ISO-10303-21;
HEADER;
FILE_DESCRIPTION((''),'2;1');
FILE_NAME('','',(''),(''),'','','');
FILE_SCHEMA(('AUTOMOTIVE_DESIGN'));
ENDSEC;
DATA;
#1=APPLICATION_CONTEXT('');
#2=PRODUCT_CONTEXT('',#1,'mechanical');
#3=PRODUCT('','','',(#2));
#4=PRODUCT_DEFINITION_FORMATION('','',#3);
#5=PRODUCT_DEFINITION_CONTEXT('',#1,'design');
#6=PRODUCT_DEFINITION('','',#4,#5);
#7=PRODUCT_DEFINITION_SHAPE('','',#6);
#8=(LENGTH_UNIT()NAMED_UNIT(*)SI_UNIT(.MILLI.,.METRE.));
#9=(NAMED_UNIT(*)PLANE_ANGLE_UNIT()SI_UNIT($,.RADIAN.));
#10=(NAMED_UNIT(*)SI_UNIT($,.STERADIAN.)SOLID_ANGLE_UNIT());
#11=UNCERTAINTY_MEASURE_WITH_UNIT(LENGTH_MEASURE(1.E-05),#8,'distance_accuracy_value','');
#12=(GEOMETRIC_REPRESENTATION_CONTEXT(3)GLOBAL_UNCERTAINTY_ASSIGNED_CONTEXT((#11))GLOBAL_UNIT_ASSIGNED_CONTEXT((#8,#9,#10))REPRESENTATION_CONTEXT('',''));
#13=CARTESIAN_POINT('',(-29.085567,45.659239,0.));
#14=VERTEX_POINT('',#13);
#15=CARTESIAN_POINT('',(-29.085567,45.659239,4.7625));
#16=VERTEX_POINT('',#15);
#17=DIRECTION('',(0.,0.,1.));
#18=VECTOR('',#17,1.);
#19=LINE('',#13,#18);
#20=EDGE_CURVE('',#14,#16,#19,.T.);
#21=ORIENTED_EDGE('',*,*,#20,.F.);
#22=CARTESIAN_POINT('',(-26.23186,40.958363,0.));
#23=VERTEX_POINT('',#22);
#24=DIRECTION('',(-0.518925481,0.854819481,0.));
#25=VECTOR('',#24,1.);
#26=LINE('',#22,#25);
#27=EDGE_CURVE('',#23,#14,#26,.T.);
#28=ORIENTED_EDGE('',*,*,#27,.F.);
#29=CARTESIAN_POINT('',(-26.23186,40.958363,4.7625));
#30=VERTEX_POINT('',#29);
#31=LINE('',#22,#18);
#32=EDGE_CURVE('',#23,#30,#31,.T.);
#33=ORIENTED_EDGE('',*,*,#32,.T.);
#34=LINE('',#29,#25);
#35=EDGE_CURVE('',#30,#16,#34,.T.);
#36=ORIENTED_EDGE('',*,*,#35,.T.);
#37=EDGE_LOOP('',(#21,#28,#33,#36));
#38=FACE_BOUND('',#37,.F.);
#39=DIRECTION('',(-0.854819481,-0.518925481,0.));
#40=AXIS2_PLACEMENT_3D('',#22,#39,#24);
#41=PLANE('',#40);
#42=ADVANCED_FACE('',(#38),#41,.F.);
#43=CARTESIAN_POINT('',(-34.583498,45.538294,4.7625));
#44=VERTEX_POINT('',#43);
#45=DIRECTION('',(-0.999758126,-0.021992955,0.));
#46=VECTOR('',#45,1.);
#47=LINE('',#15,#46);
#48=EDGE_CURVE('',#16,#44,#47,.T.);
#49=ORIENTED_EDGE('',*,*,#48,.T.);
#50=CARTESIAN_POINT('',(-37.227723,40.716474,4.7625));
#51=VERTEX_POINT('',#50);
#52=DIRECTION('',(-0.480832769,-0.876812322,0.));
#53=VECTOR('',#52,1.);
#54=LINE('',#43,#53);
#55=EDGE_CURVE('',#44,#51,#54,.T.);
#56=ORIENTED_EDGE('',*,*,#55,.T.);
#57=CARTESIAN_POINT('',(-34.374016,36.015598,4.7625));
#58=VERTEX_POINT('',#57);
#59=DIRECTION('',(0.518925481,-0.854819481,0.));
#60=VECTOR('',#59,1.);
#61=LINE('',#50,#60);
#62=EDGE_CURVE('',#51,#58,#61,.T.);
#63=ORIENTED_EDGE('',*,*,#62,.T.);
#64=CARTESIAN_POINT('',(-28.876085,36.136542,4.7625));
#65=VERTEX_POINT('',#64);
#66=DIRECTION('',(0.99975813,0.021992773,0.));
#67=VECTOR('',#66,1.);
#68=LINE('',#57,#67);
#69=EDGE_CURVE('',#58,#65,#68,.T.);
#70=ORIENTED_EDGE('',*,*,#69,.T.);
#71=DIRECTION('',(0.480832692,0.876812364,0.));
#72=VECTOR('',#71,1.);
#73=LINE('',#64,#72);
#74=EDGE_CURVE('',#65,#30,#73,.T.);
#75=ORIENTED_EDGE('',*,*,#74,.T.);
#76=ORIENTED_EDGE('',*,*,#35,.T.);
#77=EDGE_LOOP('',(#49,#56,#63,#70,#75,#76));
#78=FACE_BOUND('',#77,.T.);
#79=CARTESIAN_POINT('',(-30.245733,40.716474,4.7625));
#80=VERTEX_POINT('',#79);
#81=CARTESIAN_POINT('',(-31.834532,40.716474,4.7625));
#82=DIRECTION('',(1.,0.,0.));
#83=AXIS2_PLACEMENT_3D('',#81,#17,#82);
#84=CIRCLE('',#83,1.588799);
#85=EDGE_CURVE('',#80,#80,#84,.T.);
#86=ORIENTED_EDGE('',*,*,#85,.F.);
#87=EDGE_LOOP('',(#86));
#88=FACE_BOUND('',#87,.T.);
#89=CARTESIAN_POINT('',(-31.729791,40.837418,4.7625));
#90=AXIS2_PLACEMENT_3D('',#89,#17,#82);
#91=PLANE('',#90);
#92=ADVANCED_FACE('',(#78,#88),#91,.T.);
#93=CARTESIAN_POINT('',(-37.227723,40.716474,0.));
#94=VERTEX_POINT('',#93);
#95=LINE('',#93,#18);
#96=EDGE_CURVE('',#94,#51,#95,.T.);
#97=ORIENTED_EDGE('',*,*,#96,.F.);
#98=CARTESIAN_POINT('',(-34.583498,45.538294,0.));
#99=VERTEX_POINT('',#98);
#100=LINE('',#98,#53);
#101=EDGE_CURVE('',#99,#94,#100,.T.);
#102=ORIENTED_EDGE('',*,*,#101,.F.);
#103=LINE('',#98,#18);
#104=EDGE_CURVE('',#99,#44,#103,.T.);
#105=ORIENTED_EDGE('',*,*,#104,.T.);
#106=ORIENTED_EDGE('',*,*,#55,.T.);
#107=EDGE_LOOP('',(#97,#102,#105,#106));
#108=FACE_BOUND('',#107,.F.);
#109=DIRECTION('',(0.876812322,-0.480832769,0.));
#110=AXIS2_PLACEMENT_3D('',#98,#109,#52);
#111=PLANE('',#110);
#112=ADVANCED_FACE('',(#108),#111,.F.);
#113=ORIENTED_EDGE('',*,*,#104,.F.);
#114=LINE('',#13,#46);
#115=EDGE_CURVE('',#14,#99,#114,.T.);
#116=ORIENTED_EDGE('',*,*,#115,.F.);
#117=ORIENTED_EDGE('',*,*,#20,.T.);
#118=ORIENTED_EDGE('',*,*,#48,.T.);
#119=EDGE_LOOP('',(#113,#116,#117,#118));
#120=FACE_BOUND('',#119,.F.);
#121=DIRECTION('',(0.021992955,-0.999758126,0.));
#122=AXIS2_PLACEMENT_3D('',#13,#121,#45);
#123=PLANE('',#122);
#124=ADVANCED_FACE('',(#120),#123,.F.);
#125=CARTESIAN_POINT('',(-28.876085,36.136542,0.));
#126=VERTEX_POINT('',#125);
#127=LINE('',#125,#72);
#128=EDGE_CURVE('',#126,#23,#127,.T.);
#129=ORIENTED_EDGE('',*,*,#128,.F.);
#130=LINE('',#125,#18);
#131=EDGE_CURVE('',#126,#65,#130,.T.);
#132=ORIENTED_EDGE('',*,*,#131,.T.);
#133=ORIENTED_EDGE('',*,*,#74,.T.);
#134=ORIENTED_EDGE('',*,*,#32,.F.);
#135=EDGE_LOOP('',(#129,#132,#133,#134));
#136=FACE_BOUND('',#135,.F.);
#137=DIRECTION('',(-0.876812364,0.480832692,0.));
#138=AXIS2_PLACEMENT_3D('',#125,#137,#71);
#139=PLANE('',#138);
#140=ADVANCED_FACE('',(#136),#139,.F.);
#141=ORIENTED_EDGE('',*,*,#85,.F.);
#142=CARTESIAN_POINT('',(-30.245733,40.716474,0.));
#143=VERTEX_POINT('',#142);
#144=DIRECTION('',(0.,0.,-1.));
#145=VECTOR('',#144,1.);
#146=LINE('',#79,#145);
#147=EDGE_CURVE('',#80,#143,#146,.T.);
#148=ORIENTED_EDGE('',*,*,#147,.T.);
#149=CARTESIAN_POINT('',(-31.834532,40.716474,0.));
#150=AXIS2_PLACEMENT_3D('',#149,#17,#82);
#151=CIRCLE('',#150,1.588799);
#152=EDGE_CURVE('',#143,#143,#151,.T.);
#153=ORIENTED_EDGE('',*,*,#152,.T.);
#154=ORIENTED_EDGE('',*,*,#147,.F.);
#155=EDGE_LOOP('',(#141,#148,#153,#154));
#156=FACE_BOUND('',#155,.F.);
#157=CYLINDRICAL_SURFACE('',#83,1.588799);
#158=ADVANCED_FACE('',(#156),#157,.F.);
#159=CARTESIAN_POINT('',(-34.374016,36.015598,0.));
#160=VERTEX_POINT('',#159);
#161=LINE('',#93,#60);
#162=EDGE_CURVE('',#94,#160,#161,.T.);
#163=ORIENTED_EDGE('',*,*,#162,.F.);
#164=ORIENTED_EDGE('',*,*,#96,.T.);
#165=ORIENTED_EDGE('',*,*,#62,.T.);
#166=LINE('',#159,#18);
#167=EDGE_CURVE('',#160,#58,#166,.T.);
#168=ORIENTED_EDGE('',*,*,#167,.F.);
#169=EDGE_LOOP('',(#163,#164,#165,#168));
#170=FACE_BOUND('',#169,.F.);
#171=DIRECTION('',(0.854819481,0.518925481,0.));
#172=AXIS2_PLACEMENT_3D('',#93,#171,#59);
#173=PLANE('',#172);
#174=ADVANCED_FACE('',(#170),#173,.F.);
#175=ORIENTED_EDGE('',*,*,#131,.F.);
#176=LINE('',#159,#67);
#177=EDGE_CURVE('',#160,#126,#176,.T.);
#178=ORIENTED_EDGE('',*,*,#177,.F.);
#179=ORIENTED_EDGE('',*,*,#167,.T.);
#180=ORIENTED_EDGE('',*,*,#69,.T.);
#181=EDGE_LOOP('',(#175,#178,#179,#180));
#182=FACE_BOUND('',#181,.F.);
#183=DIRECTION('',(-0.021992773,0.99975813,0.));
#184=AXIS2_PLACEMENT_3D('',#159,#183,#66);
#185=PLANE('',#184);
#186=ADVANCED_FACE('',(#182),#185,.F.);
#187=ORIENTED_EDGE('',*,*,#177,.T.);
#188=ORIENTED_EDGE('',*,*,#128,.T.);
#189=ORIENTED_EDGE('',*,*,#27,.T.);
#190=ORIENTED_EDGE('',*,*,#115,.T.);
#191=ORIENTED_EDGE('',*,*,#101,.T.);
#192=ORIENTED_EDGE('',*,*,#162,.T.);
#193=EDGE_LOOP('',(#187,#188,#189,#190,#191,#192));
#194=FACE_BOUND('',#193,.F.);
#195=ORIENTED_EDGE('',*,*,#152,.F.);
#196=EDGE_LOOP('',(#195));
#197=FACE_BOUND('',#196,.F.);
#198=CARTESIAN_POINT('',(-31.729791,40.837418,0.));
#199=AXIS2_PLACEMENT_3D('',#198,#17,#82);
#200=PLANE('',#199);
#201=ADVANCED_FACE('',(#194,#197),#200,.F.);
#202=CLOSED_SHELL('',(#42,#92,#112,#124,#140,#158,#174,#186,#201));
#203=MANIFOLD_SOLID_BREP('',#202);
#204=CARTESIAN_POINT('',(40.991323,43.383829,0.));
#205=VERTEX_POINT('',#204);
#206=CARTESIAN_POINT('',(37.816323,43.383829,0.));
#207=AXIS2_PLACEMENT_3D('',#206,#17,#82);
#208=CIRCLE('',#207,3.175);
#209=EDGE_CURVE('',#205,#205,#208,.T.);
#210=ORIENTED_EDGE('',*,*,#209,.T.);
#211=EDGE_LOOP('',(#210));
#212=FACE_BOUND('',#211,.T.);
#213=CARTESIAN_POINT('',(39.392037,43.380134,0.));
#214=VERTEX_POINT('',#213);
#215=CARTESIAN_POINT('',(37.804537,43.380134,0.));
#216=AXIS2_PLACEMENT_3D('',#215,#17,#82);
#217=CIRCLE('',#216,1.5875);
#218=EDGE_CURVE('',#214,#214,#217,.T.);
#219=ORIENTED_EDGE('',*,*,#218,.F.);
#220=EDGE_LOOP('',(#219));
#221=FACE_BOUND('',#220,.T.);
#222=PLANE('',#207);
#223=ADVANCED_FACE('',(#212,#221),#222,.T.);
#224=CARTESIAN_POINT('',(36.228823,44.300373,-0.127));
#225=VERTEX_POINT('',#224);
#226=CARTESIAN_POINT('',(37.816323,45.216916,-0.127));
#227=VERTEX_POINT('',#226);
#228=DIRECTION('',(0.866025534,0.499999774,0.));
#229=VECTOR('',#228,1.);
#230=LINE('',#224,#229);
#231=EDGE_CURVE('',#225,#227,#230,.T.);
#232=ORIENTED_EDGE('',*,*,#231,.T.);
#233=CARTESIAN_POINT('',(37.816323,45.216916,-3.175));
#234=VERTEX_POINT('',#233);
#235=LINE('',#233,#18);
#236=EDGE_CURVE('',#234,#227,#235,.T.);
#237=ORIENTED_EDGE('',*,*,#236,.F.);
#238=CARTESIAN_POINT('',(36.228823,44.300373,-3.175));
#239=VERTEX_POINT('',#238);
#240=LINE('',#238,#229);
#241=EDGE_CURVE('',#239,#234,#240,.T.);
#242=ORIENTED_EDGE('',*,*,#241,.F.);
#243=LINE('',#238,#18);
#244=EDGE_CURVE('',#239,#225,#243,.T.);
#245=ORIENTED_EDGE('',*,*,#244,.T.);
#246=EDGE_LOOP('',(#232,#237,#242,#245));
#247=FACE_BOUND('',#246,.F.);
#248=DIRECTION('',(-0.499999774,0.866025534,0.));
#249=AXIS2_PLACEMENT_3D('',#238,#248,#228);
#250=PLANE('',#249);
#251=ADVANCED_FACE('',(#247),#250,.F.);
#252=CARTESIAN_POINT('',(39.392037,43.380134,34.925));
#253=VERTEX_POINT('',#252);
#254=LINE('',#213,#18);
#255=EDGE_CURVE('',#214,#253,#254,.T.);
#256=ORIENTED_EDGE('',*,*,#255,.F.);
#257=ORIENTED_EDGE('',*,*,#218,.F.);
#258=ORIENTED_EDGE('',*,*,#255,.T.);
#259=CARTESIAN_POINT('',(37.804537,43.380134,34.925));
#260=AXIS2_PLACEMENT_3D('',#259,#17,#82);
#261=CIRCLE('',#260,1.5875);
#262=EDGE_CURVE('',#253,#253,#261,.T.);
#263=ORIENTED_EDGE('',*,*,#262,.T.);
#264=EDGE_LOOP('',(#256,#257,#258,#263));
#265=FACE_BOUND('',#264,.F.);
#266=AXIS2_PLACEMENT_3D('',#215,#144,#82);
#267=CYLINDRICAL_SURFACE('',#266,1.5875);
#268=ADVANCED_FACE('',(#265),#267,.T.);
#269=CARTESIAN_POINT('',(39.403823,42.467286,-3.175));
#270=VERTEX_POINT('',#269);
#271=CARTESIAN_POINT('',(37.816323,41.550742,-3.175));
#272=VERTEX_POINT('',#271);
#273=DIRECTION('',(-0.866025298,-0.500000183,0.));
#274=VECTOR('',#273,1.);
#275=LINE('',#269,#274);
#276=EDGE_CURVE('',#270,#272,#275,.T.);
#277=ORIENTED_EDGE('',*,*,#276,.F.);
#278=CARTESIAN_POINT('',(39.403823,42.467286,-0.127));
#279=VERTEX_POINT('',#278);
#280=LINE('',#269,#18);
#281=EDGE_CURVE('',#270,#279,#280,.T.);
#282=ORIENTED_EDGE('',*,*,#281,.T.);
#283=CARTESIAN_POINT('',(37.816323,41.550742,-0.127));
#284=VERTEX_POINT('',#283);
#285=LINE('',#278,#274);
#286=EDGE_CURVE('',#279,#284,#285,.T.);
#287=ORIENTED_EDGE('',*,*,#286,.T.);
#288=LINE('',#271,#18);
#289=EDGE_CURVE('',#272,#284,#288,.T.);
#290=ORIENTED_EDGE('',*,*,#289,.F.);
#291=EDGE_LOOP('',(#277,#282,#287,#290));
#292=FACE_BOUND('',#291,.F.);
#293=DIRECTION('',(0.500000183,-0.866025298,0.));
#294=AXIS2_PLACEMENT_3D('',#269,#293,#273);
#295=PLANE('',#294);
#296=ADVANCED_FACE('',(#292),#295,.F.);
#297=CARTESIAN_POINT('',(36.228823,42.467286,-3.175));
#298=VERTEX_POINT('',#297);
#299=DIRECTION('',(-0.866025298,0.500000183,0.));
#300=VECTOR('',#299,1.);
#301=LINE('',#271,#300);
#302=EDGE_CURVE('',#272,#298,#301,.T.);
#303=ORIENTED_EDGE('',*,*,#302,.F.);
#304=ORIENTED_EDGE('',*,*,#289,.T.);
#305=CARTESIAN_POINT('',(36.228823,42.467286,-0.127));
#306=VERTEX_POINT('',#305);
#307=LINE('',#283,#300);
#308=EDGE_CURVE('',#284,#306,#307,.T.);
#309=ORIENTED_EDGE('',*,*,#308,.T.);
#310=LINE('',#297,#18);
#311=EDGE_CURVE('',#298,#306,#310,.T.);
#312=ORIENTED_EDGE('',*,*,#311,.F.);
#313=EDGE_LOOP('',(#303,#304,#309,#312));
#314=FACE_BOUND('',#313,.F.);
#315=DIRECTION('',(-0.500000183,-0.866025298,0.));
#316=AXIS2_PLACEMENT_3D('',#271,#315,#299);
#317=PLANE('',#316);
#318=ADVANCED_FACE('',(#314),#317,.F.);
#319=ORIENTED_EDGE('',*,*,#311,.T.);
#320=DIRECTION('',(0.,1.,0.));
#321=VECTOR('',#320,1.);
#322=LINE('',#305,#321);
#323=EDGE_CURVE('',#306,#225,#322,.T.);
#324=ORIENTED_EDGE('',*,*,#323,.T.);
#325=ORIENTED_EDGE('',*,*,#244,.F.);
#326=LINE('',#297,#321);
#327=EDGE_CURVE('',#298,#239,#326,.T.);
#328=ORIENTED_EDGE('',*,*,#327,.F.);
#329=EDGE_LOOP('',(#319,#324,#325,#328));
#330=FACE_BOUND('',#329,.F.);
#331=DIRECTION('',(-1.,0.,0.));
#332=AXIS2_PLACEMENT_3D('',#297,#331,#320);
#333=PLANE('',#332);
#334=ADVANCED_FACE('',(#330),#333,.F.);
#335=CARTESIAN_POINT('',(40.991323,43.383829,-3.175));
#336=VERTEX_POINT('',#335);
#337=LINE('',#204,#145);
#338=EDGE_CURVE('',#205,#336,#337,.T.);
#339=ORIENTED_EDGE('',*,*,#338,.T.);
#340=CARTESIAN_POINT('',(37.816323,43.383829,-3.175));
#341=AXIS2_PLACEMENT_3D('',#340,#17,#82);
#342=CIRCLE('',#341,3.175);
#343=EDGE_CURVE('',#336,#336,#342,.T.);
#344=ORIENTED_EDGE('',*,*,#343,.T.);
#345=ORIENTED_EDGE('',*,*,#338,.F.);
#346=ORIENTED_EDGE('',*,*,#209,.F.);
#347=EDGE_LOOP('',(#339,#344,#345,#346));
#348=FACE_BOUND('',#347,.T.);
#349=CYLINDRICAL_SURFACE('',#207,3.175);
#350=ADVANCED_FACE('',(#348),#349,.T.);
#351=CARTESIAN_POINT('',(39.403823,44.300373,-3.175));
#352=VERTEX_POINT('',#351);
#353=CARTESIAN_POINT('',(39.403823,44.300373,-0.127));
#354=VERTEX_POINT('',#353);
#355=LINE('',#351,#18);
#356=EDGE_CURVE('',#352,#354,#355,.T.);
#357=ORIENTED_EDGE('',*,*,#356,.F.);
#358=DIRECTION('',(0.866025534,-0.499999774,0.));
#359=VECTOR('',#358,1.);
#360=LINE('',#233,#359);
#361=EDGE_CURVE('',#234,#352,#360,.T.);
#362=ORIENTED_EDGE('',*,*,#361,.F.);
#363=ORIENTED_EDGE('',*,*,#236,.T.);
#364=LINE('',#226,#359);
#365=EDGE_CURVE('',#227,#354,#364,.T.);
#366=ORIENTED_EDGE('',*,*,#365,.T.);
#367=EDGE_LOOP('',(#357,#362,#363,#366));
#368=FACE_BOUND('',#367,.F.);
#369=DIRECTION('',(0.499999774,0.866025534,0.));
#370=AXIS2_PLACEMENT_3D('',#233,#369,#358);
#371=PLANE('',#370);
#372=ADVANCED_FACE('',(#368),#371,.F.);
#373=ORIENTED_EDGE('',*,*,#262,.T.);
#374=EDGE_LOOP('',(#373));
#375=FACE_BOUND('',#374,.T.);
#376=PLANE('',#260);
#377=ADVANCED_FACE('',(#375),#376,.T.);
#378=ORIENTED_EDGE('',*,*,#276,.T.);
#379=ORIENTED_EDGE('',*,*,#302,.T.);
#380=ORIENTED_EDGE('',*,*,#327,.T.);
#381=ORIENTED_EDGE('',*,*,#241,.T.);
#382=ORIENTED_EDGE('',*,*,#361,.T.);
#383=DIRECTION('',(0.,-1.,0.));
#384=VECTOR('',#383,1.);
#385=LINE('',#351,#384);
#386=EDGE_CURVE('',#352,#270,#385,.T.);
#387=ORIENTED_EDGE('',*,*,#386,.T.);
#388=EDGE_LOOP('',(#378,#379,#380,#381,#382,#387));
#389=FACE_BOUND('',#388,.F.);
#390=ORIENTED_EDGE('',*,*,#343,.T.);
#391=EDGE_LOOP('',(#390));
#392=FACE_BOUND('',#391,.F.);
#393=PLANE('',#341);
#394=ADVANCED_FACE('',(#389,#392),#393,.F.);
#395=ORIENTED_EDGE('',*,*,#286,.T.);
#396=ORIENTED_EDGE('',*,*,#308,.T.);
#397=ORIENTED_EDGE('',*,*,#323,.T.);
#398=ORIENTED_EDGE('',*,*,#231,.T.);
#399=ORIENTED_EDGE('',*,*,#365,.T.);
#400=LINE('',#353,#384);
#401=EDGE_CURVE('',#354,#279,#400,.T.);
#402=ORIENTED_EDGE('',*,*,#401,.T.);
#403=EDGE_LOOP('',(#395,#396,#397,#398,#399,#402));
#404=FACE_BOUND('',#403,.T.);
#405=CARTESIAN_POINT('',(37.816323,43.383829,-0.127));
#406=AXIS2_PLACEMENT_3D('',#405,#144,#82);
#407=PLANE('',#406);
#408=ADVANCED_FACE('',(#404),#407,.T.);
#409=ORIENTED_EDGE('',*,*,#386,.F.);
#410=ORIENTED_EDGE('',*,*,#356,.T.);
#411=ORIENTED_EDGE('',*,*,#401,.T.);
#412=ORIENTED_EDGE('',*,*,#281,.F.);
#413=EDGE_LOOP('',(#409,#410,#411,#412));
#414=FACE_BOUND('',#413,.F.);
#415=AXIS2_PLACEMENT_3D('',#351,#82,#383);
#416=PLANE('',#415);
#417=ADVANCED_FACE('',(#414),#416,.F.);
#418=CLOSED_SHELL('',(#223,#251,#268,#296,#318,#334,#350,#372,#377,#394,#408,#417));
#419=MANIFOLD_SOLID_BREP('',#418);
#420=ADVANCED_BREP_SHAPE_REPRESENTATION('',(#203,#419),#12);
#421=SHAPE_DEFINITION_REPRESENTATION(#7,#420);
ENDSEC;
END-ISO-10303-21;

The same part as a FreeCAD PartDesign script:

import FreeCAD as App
import Part
import Sketcher

V = App.Vector
Q = App.Units.Quantity

doc = App.newDocument("Part")
body = doc.addObject("PartDesign::Body", "Body")

# Sketch on XY plane
sketch1 = body.newObject("Sketcher::SketchObject", "Sketch")
sketch1.AttachmentSupport = (doc.getObject("XY_Plane"), [""])
sketch1.MapMode = "FlatFace"
sketch1.addGeometry([
    Part.LineSegment(V(-28.876085, 36.136542, 0), V(-26.23186, 40.958363, 0)),  # 0
    Part.LineSegment(V(-26.23186, 40.958363, 0), V(-29.085567, 45.659239, 0)),  # 1
    Part.LineSegment(V(-29.085567, 45.659239, 0), V(-34.583498, 45.538294, 0)),  # 2
    Part.LineSegment(V(-34.583498, 45.538294, 0), V(-37.227723, 40.716474, 0)),  # 3
    Part.LineSegment(V(-37.227723, 40.716474, 0), V(-34.374016, 36.015598, 0)),  # 4
    Part.LineSegment(V(-34.374016, 36.015598, 0), V(-28.876085, 36.136542, 0)),  # 5
], False)
sketch1.addConstraint([
    Sketcher.Constraint("Coincident", 0, 2, 1, 1),
    Sketcher.Constraint("Coincident", 1, 2, 2, 1),
    Sketcher.Constraint("Coincident", 2, 2, 3, 1),
    Sketcher.Constraint("Coincident", 3, 2, 4, 1),
    Sketcher.Constraint("Coincident", 4, 2, 5, 1),
    Sketcher.Constraint("Coincident", 5, 2, 0, 1),
    Sketcher.Constraint("Distance", 1, 5.499262),
    Sketcher.Constraint("Distance", 2, 5.499261),
    Sketcher.Constraint("Distance", 3, 5.499261),
    Sketcher.Constraint("Distance", 4, 5.499262),
    Sketcher.Constraint("Distance", 5, 5.499261),
    Sketcher.Constraint("DistanceX", 0, 2, -1, 1, 26.23186),
    Sketcher.Constraint("DistanceY", -1, 1, 1, 2, 45.659239),
    Sketcher.Constraint("DistanceX", 2, 2, 1, 2, 5.497931),
    Sketcher.Constraint("DistanceY", 0, 2, 2, 2, 4.579931),
    Sketcher.Constraint("DistanceY", 3, 2, 2, 2, 4.82182),
    Sketcher.Constraint("DistanceX", 4, 2, 1, 2, 5.288449),
    Sketcher.Constraint("DistanceX", 4, 2, 5, 2, 5.497931),
])
pad1 = body.newObject("PartDesign::Pad", "Pad")
pad1.Profile = sketch1
pad1.Length = Q("0.1875 in")

# Sketch on XY plane
sketch2 = body.newObject("Sketcher::SketchObject", "Sketch001")
sketch2.AttachmentSupport = (doc.getObject("XY_Plane"), [""])
sketch2.MapMode = "FlatFace"
sketch2.AttachmentOffset = App.Placement(V(0, 0, 0.1875 * 25.4), App.Rotation())
sketch2.addGeometry(Part.Circle(V(-31.8, 40.7, 0), V(0, 0, 1), 1.6), False)
sketch2.addConstraint([
    Sketcher.Constraint("Diameter", 0, 3.177598),
    Sketcher.Constraint("DistanceX", 0, 3, -1, 1, 31.834532),
    Sketcher.Constraint("DistanceY", -1, 1, 0, 3, 40.716474),
])
pocket1 = body.newObject("PartDesign::Pocket", "Pocket")
pocket1.Profile = sketch2
pocket1.Length = Q("0.1875 in")
body2 = doc.addObject("PartDesign::Body", "Body001")

# Sketch on XY plane
sketch3 = body2.newObject("Sketcher::SketchObject", "Sketch002")
sketch3.AttachmentSupport = (doc.getObject("XY_Plane001"), [""])
sketch3.MapMode = "FlatFace"
sketch3.addGeometry(Part.Circle(V(37.8, 43.4, 0), V(0, 0, 1), 1.6), False)
sketch3.addConstraint([
    Sketcher.Constraint("Diameter", 0, Q("0.125 in")),
    Sketcher.Constraint("DistanceX", -1, 1, 0, 3, 37.804537),
    Sketcher.Constraint("DistanceY", -1, 1, 0, 3, 43.380134),
])
pad2 = body2.newObject("PartDesign::Pad", "Pad001")
pad2.Profile = sketch3
pad2.Length = Q("1.375 in")

# Sketch on XY plane
sketch4 = body2.newObject("Sketcher::SketchObject", "Sketch003")
sketch4.AttachmentSupport = (doc.getObject("XY_Plane001"), [""])
sketch4.MapMode = "FlatFace"
sketch4.addGeometry(Part.Circle(V(37.8, 43.4, 0), V(0, 0, 1), 3.2), False)
sketch4.addConstraint([
    Sketcher.Constraint("Diameter", 0, Q("0.25 in")),
    Sketcher.Constraint("DistanceY", -1, 1, 0, 3, 43.383829),
    Sketcher.Constraint("DistanceX", -1, 1, 0, 3, 37.816323),
])
pad3 = body2.newObject("PartDesign::Pad", "Pad002")
pad3.Profile = sketch4
pad3.Length = Q("0.125 in")
pad3.Reversed = True

# Sketch on XY plane
sketch5 = body2.newObject("Sketcher::SketchObject", "Sketch004")
sketch5.AttachmentSupport = (doc.getObject("XY_Plane001"), [""])
sketch5.MapMode = "FlatFace"
sketch5.AttachmentOffset = App.Placement(V(0, 0, -0.125 * 25.4), App.Rotation())
sketch5.addGeometry([
    Part.LineSegment(V(39.4, 44.3, 0), V(39.4, 42.5, 0)),  # 0
    Part.LineSegment(V(39.4, 42.5, 0), V(37.8, 41.6, 0)),  # 1
    Part.LineSegment(V(37.8, 41.6, 0), V(36.2, 42.5, 0)),  # 2
    Part.LineSegment(V(36.2, 42.5, 0), V(36.2, 44.3, 0)),  # 3
    Part.LineSegment(V(36.2, 44.3, 0), V(37.8, 45.2, 0)),  # 4
    Part.LineSegment(V(37.8, 45.2, 0), V(39.4, 44.3, 0)),  # 5
], False)
sketch5.addConstraint([
    Sketcher.Constraint("Coincident", 0, 2, 1, 1),
    Sketcher.Constraint("Coincident", 1, 2, 2, 1),
    Sketcher.Constraint("Coincident", 2, 2, 3, 1),
    Sketcher.Constraint("Coincident", 3, 2, 4, 1),
    Sketcher.Constraint("Coincident", 4, 2, 5, 1),
    Sketcher.Constraint("Coincident", 5, 2, 0, 1),
    Sketcher.Constraint("Vertical", 0),
    Sketcher.Constraint("Vertical", 3),
    Sketcher.Constraint("Parallel", 1, 4),
    Sketcher.Constraint("Parallel", 2, 5),
    Sketcher.Constraint("Horizontal", 0, 2, 2, 2),
    Sketcher.Constraint("Horizontal", 3, 2, 5, 2),
    Sketcher.Constraint("Vertical", 1, 2, 4, 2),
    Sketcher.Constraint("Angle", 1, Q("-149.999988 deg")),
    Sketcher.Constraint("DistanceX", 1, 2, 0, 2, Q("0.0625 in")),
    Sketcher.Constraint("DistanceY", 0, 2, 0, 1, 1.833087),
    Sketcher.Constraint("DistanceX", -1, 1, 0, 2, 39.403823),
    Sketcher.Constraint("DistanceY", -1, 1, 0, 2, 42.467286),
])
pocket2 = body2.newObject("PartDesign::Pocket", "Pocket001")
pocket2.Profile = sketch5
pocket2.Length = Q("0.12 in")
pocket2.Reversed = True

doc.recompute()
